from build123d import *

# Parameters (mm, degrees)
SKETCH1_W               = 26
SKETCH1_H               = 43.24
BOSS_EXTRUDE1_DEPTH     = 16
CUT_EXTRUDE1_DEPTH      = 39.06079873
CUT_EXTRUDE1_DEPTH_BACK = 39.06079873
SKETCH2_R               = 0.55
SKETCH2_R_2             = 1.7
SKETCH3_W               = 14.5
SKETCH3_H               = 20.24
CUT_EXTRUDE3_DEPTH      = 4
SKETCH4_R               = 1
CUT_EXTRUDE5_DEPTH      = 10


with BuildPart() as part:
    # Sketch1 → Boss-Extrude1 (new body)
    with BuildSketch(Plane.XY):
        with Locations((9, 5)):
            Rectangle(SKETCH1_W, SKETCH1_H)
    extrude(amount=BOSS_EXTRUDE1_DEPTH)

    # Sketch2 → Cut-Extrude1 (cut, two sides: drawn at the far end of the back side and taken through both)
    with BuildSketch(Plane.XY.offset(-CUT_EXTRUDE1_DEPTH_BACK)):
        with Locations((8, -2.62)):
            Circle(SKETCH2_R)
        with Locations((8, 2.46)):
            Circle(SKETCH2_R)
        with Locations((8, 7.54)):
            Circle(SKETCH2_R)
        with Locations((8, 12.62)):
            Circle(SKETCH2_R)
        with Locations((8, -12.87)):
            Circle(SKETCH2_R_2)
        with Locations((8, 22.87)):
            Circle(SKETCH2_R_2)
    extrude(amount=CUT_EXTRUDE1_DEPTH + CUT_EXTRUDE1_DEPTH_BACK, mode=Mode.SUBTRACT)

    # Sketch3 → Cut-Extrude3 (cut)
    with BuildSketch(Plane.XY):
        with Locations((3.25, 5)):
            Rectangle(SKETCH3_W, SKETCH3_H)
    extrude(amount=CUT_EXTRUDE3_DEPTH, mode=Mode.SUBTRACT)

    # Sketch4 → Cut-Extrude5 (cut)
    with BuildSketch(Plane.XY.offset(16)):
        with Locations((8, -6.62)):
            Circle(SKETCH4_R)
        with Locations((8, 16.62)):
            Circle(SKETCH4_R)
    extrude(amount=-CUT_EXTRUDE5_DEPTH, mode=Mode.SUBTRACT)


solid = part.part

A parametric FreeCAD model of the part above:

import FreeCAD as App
import Part
import Sketcher

V = App.Vector

doc = App.newDocument("Part")
body = doc.addObject("PartDesign::Body", "Body")

# Sketch on XY plane
sketch1 = body.newObject("Sketcher::SketchObject", "Sketch")
sketch1.AttachmentSupport = (doc.getObject("XY_Plane"), [""])
sketch1.MapMode = "FlatFace"
sketch1.addGeometry([
    Part.LineSegment(V(-4, 27, 0), V(-4, -17, 0)),
    Part.LineSegment(V(-4, -17, 0), V(22, -17, 0)),
    Part.LineSegment(V(22, -17, 0), V(22, 27, 0)),
    Part.LineSegment(V(22, 27, 0), V(-4, 27, 0)),
], False)
sketch1.addConstraint([
    Sketcher.Constraint("Coincident", 0, 2, 1, 1),
    Sketcher.Constraint("Coincident", 1, 2, 2, 1),
    Sketcher.Constraint("Coincident", 2, 2, 3, 1),
    Sketcher.Constraint("Coincident", 3, 2, 0, 1),
    Sketcher.Constraint("Vertical", 0),
    Sketcher.Constraint("Horizontal", 1),
    Sketcher.Constraint("Vertical", 2),
    Sketcher.Constraint("Horizontal", 3),
    Sketcher.Constraint("DistanceX", 1, 1, 1, 2, 26.0),
    Sketcher.Constraint("DistanceX", 0, 2, -1, 1, 4.0),
    Sketcher.Constraint("DistanceY", 0, 2, 0, 1, 43.24),
    Sketcher.Constraint("DistanceY", 0, 2, -1, 1, 16.62),
])
pad1 = body.newObject("PartDesign::Pad", "Pad")
pad1.Profile = sketch1
pad1.Length = 16

# Sketch on XY plane
sketch2 = body.newObject("Sketcher::SketchObject", "Sketch001")
sketch2.AttachmentSupport = (doc.getObject("XY_Plane"), [""])
sketch2.MapMode = "FlatFace"
sketch2.addGeometry([
    Part.Circle(V(8, -2.6, 0), V(0, 0, 1), 0.6),  # 0
    Part.Circle(V(8, 2.5, 0), V(0, 0, 1), 0.6),  # 1
    Part.Circle(V(8, 7.5, 0), V(0, 0, 1), 0.6),  # 2
    Part.Circle(V(8, 12.6, 0), V(0, 0, 1), 0.6),  # 3
    Part.Circle(V(8, -12.9, 0), V(0, 0, 1), 1.7),  # 4
    Part.Circle(V(8, 22.9, 0), V(0, 0, 1), 1.7),  # 5
], False)
sketch2.addConstraint([
    Sketcher.Constraint("Equal", 0, 1),
    Sketcher.Constraint("Equal", 1, 2),
    Sketcher.Constraint("Equal", 2, 3),
    Sketcher.Constraint("Equal", 4, 5),
    Sketcher.Constraint("Vertical", 0, 3, 1, 3),
    Sketcher.Constraint("Vertical", 1, 3, 2, 3),
    Sketcher.Constraint("Vertical", 2, 3, 3, 3),
    Sketcher.Constraint("Vertical", 3, 3, 4, 3),
    Sketcher.Constraint("Vertical", 4, 3, 5, 3),
    Sketcher.Constraint("Diameter", 0, 1.1),
    Sketcher.Constraint("Diameter", 4, 3.4),
    Sketcher.Constraint("DistanceX", -1, 1, 0, 3, 8.0),
    Sketcher.Constraint("DistanceY", 0, 3, -1, 1, 2.62),
    Sketcher.Constraint("DistanceY", -1, 1, 1, 3, 2.46),
    Sketcher.Constraint("DistanceY", -1, 1, 2, 3, 7.54),
    Sketcher.Constraint("DistanceY", -1, 1, 3, 3, 12.62),
    Sketcher.Constraint("DistanceY", 4, 3, -1, 1, 12.87),
    Sketcher.Constraint("DistanceY", -1, 1, 5, 3, 22.87),
])
pocket1 = body.newObject("PartDesign::Pocket", "Pocket")
pocket1.Profile = sketch2
pocket1.Type = "ThroughAll"
pocket1.Midplane = True

# Sketch on XY plane
sketch3 = body.newObject("Sketcher::SketchObject", "Sketch002")
sketch3.AttachmentSupport = (doc.getObject("XY_Plane"), [""])
sketch3.MapMode = "FlatFace"
sketch3.addGeometry([
    Part.LineSegment(V(-4, 15, 0), V(-4, -5, 0)),
    Part.LineSegment(V(-4, -5, 0), V(10, -5, 0)),
    Part.LineSegment(V(10, -5, 0), V(10, 15, 0)),
    Part.LineSegment(V(10, 15, 0), V(-4, 15, 0)),
], False)
sketch3.addConstraint([
    Sketcher.Constraint("Coincident", 0, 2, 1, 1),
    Sketcher.Constraint("Coincident", 1, 2, 2, 1),
    Sketcher.Constraint("Coincident", 2, 2, 3, 1),
    Sketcher.Constraint("Coincident", 3, 2, 0, 1),
    Sketcher.Constraint("Vertical", 0),
    Sketcher.Constraint("Horizontal", 1),
    Sketcher.Constraint("Vertical", 2),
    Sketcher.Constraint("Horizontal", 3),
    Sketcher.Constraint("DistanceX", 1, 1, 1, 2, 14.5),
    Sketcher.Constraint("DistanceX", 0, 2, -1, 1, 4.0),
    Sketcher.Constraint("DistanceY", 0, 2, 0, 1, 20.24),
    Sketcher.Constraint("DistanceY", 0, 2, -1, 1, 5.12),
])
pocket2 = body.newObject("PartDesign::Pocket", "Pocket001")
pocket2.Profile = sketch3
pocket2.Length = 4
pocket2.Reversed = True

# Sketch on XY plane
sketch4 = body.newObject("Sketcher::SketchObject", "Sketch003")
sketch4.AttachmentSupport = (doc.getObject("XY_Plane"), [""])
sketch4.MapMode = "FlatFace"
sketch4.AttachmentOffset = App.Placement(V(0, 0, 16), App.Rotation())
sketch4.addGeometry([
    Part.Circle(V(8, -6.6, 0), V(0, 0, 1), 1),
    Part.Circle(V(8, 16.6, 0), V(0, 0, 1), 1),
], False)
sketch4.addConstraint([
    Sketcher.Constraint("Equal", 0, 1),
    Sketcher.Constraint("Vertical", 0, 3, 1, 3),
    Sketcher.Constraint("Diameter", 0, 2.0),
    Sketcher.Constraint("DistanceX", -1, 1, 0, 3, 8.0),
    Sketcher.Constraint("DistanceY", 0, 3, -1, 1, 6.62),
    Sketcher.Constraint("DistanceY", -1, 1, 1, 3, 16.62),
])
pocket3 = body.newObject("PartDesign::Pocket", "Pocket002")
pocket3.Profile = sketch4
pocket3.Length = 10

doc.recompute()
